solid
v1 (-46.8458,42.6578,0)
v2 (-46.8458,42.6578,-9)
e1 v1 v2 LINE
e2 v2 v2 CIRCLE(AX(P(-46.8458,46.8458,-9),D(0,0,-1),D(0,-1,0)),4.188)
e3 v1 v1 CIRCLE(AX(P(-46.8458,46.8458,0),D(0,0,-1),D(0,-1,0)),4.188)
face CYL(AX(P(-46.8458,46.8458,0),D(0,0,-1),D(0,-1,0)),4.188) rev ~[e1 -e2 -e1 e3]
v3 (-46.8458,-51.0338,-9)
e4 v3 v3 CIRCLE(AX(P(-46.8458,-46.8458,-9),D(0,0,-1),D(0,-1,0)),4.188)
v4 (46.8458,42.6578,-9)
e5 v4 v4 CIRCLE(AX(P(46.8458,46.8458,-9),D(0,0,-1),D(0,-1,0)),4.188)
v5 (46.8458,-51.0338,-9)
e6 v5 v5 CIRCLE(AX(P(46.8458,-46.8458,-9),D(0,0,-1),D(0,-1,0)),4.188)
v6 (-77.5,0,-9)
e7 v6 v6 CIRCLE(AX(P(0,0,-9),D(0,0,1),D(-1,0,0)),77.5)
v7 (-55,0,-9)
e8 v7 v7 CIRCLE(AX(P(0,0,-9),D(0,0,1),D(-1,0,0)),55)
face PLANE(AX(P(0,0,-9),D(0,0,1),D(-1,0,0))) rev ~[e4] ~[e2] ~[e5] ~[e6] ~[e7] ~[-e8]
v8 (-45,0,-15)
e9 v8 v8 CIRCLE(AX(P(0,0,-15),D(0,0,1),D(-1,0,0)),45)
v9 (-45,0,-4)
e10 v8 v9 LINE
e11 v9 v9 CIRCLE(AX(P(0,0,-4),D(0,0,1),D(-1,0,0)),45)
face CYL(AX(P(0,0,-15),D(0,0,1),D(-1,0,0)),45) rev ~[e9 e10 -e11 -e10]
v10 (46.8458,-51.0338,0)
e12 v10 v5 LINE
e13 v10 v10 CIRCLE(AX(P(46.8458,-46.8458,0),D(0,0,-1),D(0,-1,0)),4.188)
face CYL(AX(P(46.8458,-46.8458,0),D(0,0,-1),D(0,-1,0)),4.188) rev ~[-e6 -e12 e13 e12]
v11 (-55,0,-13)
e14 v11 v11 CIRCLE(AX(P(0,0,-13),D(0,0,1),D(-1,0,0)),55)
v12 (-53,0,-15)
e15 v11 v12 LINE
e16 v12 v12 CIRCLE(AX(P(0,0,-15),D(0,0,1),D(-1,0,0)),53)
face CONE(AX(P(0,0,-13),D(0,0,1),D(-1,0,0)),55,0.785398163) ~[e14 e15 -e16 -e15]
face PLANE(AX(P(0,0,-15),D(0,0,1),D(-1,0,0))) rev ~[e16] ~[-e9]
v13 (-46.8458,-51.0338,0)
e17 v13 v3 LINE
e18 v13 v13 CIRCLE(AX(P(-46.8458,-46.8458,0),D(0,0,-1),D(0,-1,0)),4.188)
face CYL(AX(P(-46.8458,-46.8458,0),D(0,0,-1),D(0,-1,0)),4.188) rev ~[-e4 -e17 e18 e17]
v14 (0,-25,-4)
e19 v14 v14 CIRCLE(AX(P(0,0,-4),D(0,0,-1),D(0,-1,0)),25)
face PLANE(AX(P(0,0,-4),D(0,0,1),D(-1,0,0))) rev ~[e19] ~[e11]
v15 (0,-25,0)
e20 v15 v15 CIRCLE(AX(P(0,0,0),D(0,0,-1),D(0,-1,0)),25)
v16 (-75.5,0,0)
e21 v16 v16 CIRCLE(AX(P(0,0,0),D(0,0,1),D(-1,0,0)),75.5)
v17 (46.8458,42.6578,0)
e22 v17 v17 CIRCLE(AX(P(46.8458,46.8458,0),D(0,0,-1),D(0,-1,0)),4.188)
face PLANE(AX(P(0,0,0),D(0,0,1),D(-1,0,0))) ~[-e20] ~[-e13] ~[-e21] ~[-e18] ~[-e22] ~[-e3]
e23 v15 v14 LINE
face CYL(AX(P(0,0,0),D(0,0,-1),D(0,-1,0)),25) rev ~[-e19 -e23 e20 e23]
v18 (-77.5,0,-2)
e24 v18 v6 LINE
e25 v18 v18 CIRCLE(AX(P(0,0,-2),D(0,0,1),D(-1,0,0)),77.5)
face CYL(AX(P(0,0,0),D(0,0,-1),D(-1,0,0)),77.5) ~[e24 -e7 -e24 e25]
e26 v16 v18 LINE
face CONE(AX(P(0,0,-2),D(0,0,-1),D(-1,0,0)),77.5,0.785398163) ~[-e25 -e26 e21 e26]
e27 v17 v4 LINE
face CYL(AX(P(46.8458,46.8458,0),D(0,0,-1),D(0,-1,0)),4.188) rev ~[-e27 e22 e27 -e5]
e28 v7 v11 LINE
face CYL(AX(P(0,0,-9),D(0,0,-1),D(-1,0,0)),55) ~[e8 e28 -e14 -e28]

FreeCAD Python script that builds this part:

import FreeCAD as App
import Part
import Sketcher

V = App.Vector


def edges_at(feature, points):
    """Names of the edges that pass closest to the given points."""
    edges = feature.Shape.Edges
    near = lambda p: min(range(len(edges)), key=lambda i: edges[i].distToShape(Part.Vertex(*p))[0])
    return sorted({f"Edge{near(p) + 1}" for p in points})


def add_polygon(sketch, points):
    """Adds a closed chain of lines whose ends are joined by coincident constraints."""
    first, n = sketch.GeometryCount, len(points)
    for a, b in zip(points, points[1:] + points[:1]):
        sketch.addGeometry(Part.LineSegment(App.Vector(*a, 0), App.Vector(*b, 0)), False)
    for i in range(n):
        sketch.addConstraint(Sketcher.Constraint("Coincident", first + i, 2, first + (i + 1) % n, 1))

doc = App.newDocument("Part")
body = doc.addObject("PartDesign::Body", "Body")

sketch1 = body.newObject("Sketcher::SketchObject", "Sketch")
sketch1.AttachmentSupport = (doc.getObject("XZ_Plane"), [""])
sketch1.MapMode = "FlatFace"
add_polygon(sketch1, [(-77.5, 0), (0, 0), (0, -4), (-45, -4), (-45, -15), (-55, -15), (-55, -9), (-77.5, -9)])
sketch1.addConstraint([
    Sketcher.Constraint("Horizontal", 0),
    Sketcher.Constraint("Vertical", 1),
    Sketcher.Constraint("Horizontal", 2),
    Sketcher.Constraint("Vertical", 3),
    Sketcher.Constraint("Horizontal", 4),
    Sketcher.Constraint("Vertical", 5),
    Sketcher.Constraint("Horizontal", 6),
    Sketcher.Constraint("Vertical", 7),
    Sketcher.Constraint("Coincident", 0, 2, -1, 1),
    Sketcher.Constraint("DistanceY", 1, 2, 1, 1, 4.0),
    Sketcher.Constraint("DistanceY", 7, 1, 7, 2, 9.0),
    Sketcher.Constraint("DistanceY", 3, 2, -1, 1, 15.0),
    Sketcher.Constraint("DistanceX", 2, 2, 2, 1, 45.0),
    Sketcher.Constraint("DistanceX", 4, 2, 4, 1, 10.0),
    Sketcher.Constraint("DistanceX", 0, 1, 0, 2, 77.5),
])
revolution = body.newObject("PartDesign::Revolution", "Revolution")
revolution.Profile = sketch1
revolution.ReferenceAxis = (sketch1, ["V_Axis"])
revolution.Angle = 360

sketch2 = body.newObject("Sketcher::SketchObject", "Sketch001")
sketch2.AttachmentSupport = (doc.getObject("XY_Plane"), [""])
sketch2.MapMode = "FlatFace"
sketch2.addGeometry([
    Part.Circle(V(-46.8458, -46.8458, 0), V(0, 0, 1), 4.188),
    Part.Circle(V(46.8458, -46.8458, 0), V(0, 0, 1), 4.188),
    Part.Circle(V(46.8458, 46.8458, 0), V(0, 0, 1), 4.188),
    Part.Circle(V(-46.8458, 46.8458, 0), V(0, 0, 1), 4.188),
], False)
sketch2.addConstraint([
    Sketcher.Constraint("Equal", 0, 1),
    Sketcher.Constraint("Equal", 1, 2),
    Sketcher.Constraint("Equal", 2, 3),
    Sketcher.Constraint("Symmetric", 0, 3, 2, 3, -1, 1),
    Sketcher.Constraint("Symmetric", 1, 3, 3, 3, -1, 1),
    Sketcher.Constraint("Symmetric", 0, 3, 1, 3, -2),
    Sketcher.Constraint("Diameter", 0, 8.376),
    Sketcher.Constraint("DistanceX", 0, 3, -1, 1, 46.8458),
    Sketcher.Constraint("DistanceY", 0, 3, -1, 1, 46.8458),
])
doc.recompute()
hole = body.newObject("PartDesign::Hole", "Hole")
hole.Profile = sketch2
hole.ThreadType = "None"
hole.Diameter = 8.376
hole.DepthType = "ThroughAll"
doc.recompute()

chamfer = body.newObject("PartDesign::Chamfer", "Chamfer")
chamfer.Base = (hole, edges_at(hole, [(55, 0, -15), (77.5, 0, 0)]))
chamfer.Size = 2

sketch3 = body.newObject("Sketcher::SketchObject", "Sketch002")
sketch3.AttachmentSupport = (doc.getObject("XY_Plane"), [""])
sketch3.MapMode = "FlatFace"
sketch3.addGeometry(Part.Circle(V(0, 0, 0), V(0, 0, 1), 25), False)
sketch3.addConstraint([
    Sketcher.Constraint("Coincident", 0, 3, -1, 1),
    Sketcher.Constraint("Diameter", 0, 50.0),
])
doc.recompute()
hole2 = body.newObject("PartDesign::Hole", "Hole001")
hole2.Profile = sketch3
hole2.ThreadType = "None"
hole2.Diameter = 50
hole2.DepthType = "ThroughAll"

doc.recompute()
